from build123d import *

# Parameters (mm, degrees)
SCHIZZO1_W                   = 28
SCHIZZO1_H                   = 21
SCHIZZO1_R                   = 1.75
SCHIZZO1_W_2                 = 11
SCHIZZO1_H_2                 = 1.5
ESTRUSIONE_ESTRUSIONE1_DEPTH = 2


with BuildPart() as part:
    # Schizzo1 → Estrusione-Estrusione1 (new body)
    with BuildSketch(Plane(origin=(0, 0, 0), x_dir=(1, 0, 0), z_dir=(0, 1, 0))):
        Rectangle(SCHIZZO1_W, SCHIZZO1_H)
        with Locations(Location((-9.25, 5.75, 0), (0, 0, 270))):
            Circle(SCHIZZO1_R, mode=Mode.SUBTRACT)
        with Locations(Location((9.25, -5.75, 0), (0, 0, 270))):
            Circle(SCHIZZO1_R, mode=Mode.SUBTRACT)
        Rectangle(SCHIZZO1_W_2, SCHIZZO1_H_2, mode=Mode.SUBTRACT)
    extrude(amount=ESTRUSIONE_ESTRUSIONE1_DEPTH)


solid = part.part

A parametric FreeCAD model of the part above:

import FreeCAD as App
import Part
import Sketcher

V = App.Vector

doc = App.newDocument("Part")
body = doc.addObject("PartDesign::Body", "Body")

# Sketch on XZ plane
sketch1 = body.newObject("Sketcher::SketchObject", "Sketch")
sketch1.AttachmentSupport = (doc.getObject("XZ_Plane"), [""])
sketch1.MapMode = "FlatFace"
sketch1.addGeometry([
    Part.LineSegment(V(-14, -10.5, 0), V(-14, 10.5, 0)),  # 0
    Part.LineSegment(V(-14, 10.5, 0), V(14, 10.5, 0)),  # 1
    Part.LineSegment(V(14, 10.5, 0), V(14, -10.5, 0)),  # 2
    Part.LineSegment(V(14, -10.5, 0), V(-14, -10.5, 0)),  # 3
    Part.Circle(V(9.2, 5.8, 0), V(0, 0, 1), 1.8),  # 4
    Part.Circle(V(-9.2, -5.8, 0), V(0, 0, 1), 1.8),  # 5
    Part.LineSegment(V(5.5, 0.8, 0), V(-5.5, 0.8, 0)),  # 6
    Part.LineSegment(V(-5.5, 0.8, 0), V(-5.5, -0.8, 0)),  # 7
    Part.LineSegment(V(-5.5, -0.8, 0), V(5.5, -0.8, 0)),  # 8
    Part.LineSegment(V(5.5, -0.8, 0), V(5.5, 0.8, 0)),  # 9
], False)
sketch1.addConstraint([
    Sketcher.Constraint("Coincident", 0, 2, 1, 1),
    Sketcher.Constraint("Coincident", 1, 2, 2, 1),
    Sketcher.Constraint("Coincident", 2, 2, 3, 1),
    Sketcher.Constraint("Coincident", 3, 2, 0, 1),
    Sketcher.Constraint("Coincident", 6, 2, 7, 1),
    Sketcher.Constraint("Coincident", 7, 2, 8, 1),
    Sketcher.Constraint("Coincident", 8, 2, 9, 1),
    Sketcher.Constraint("Coincident", 9, 2, 6, 1),
    Sketcher.Constraint("Vertical", 0),
    Sketcher.Constraint("Horizontal", 1),
    Sketcher.Constraint("Vertical", 2),
    Sketcher.Constraint("Horizontal", 3),
    Sketcher.Constraint("Horizontal", 6),
    Sketcher.Constraint("Vertical", 7),
    Sketcher.Constraint("Horizontal", 8),
    Sketcher.Constraint("Vertical", 9),
    Sketcher.Constraint("Equal", 4, 5),
    Sketcher.Constraint("Symmetric", 4, 3, 5, 3, -1, 1),
    Sketcher.Constraint("Symmetric", 0, 2, 2, 2, -1, 1),
    Sketcher.Constraint("Symmetric", 6, 2, 8, 2, -1, 1),
    Sketcher.Constraint("Diameter", 4, 3.5),
    Sketcher.Constraint("DistanceX", 1, 1, 1, 2, 28.0),
    Sketcher.Constraint("DistanceX", 6, 2, 6, 1, 11.0),
    Sketcher.Constraint("DistanceY", 0, 1, 0, 2, 21.0),
    Sketcher.Constraint("DistanceY", 7, 2, 7, 1, 1.5),
    Sketcher.Constraint("DistanceY", 6, 2, 4, 3, 5.0),
    Sketcher.Constraint("DistanceX", 5, 3, 4, 3, 18.5),
])
pad1 = body.newObject("PartDesign::Pad", "Pad")
pad1.Profile = sketch1
pad1.Length = 2
pad1.Reversed = True

doc.recompute()
